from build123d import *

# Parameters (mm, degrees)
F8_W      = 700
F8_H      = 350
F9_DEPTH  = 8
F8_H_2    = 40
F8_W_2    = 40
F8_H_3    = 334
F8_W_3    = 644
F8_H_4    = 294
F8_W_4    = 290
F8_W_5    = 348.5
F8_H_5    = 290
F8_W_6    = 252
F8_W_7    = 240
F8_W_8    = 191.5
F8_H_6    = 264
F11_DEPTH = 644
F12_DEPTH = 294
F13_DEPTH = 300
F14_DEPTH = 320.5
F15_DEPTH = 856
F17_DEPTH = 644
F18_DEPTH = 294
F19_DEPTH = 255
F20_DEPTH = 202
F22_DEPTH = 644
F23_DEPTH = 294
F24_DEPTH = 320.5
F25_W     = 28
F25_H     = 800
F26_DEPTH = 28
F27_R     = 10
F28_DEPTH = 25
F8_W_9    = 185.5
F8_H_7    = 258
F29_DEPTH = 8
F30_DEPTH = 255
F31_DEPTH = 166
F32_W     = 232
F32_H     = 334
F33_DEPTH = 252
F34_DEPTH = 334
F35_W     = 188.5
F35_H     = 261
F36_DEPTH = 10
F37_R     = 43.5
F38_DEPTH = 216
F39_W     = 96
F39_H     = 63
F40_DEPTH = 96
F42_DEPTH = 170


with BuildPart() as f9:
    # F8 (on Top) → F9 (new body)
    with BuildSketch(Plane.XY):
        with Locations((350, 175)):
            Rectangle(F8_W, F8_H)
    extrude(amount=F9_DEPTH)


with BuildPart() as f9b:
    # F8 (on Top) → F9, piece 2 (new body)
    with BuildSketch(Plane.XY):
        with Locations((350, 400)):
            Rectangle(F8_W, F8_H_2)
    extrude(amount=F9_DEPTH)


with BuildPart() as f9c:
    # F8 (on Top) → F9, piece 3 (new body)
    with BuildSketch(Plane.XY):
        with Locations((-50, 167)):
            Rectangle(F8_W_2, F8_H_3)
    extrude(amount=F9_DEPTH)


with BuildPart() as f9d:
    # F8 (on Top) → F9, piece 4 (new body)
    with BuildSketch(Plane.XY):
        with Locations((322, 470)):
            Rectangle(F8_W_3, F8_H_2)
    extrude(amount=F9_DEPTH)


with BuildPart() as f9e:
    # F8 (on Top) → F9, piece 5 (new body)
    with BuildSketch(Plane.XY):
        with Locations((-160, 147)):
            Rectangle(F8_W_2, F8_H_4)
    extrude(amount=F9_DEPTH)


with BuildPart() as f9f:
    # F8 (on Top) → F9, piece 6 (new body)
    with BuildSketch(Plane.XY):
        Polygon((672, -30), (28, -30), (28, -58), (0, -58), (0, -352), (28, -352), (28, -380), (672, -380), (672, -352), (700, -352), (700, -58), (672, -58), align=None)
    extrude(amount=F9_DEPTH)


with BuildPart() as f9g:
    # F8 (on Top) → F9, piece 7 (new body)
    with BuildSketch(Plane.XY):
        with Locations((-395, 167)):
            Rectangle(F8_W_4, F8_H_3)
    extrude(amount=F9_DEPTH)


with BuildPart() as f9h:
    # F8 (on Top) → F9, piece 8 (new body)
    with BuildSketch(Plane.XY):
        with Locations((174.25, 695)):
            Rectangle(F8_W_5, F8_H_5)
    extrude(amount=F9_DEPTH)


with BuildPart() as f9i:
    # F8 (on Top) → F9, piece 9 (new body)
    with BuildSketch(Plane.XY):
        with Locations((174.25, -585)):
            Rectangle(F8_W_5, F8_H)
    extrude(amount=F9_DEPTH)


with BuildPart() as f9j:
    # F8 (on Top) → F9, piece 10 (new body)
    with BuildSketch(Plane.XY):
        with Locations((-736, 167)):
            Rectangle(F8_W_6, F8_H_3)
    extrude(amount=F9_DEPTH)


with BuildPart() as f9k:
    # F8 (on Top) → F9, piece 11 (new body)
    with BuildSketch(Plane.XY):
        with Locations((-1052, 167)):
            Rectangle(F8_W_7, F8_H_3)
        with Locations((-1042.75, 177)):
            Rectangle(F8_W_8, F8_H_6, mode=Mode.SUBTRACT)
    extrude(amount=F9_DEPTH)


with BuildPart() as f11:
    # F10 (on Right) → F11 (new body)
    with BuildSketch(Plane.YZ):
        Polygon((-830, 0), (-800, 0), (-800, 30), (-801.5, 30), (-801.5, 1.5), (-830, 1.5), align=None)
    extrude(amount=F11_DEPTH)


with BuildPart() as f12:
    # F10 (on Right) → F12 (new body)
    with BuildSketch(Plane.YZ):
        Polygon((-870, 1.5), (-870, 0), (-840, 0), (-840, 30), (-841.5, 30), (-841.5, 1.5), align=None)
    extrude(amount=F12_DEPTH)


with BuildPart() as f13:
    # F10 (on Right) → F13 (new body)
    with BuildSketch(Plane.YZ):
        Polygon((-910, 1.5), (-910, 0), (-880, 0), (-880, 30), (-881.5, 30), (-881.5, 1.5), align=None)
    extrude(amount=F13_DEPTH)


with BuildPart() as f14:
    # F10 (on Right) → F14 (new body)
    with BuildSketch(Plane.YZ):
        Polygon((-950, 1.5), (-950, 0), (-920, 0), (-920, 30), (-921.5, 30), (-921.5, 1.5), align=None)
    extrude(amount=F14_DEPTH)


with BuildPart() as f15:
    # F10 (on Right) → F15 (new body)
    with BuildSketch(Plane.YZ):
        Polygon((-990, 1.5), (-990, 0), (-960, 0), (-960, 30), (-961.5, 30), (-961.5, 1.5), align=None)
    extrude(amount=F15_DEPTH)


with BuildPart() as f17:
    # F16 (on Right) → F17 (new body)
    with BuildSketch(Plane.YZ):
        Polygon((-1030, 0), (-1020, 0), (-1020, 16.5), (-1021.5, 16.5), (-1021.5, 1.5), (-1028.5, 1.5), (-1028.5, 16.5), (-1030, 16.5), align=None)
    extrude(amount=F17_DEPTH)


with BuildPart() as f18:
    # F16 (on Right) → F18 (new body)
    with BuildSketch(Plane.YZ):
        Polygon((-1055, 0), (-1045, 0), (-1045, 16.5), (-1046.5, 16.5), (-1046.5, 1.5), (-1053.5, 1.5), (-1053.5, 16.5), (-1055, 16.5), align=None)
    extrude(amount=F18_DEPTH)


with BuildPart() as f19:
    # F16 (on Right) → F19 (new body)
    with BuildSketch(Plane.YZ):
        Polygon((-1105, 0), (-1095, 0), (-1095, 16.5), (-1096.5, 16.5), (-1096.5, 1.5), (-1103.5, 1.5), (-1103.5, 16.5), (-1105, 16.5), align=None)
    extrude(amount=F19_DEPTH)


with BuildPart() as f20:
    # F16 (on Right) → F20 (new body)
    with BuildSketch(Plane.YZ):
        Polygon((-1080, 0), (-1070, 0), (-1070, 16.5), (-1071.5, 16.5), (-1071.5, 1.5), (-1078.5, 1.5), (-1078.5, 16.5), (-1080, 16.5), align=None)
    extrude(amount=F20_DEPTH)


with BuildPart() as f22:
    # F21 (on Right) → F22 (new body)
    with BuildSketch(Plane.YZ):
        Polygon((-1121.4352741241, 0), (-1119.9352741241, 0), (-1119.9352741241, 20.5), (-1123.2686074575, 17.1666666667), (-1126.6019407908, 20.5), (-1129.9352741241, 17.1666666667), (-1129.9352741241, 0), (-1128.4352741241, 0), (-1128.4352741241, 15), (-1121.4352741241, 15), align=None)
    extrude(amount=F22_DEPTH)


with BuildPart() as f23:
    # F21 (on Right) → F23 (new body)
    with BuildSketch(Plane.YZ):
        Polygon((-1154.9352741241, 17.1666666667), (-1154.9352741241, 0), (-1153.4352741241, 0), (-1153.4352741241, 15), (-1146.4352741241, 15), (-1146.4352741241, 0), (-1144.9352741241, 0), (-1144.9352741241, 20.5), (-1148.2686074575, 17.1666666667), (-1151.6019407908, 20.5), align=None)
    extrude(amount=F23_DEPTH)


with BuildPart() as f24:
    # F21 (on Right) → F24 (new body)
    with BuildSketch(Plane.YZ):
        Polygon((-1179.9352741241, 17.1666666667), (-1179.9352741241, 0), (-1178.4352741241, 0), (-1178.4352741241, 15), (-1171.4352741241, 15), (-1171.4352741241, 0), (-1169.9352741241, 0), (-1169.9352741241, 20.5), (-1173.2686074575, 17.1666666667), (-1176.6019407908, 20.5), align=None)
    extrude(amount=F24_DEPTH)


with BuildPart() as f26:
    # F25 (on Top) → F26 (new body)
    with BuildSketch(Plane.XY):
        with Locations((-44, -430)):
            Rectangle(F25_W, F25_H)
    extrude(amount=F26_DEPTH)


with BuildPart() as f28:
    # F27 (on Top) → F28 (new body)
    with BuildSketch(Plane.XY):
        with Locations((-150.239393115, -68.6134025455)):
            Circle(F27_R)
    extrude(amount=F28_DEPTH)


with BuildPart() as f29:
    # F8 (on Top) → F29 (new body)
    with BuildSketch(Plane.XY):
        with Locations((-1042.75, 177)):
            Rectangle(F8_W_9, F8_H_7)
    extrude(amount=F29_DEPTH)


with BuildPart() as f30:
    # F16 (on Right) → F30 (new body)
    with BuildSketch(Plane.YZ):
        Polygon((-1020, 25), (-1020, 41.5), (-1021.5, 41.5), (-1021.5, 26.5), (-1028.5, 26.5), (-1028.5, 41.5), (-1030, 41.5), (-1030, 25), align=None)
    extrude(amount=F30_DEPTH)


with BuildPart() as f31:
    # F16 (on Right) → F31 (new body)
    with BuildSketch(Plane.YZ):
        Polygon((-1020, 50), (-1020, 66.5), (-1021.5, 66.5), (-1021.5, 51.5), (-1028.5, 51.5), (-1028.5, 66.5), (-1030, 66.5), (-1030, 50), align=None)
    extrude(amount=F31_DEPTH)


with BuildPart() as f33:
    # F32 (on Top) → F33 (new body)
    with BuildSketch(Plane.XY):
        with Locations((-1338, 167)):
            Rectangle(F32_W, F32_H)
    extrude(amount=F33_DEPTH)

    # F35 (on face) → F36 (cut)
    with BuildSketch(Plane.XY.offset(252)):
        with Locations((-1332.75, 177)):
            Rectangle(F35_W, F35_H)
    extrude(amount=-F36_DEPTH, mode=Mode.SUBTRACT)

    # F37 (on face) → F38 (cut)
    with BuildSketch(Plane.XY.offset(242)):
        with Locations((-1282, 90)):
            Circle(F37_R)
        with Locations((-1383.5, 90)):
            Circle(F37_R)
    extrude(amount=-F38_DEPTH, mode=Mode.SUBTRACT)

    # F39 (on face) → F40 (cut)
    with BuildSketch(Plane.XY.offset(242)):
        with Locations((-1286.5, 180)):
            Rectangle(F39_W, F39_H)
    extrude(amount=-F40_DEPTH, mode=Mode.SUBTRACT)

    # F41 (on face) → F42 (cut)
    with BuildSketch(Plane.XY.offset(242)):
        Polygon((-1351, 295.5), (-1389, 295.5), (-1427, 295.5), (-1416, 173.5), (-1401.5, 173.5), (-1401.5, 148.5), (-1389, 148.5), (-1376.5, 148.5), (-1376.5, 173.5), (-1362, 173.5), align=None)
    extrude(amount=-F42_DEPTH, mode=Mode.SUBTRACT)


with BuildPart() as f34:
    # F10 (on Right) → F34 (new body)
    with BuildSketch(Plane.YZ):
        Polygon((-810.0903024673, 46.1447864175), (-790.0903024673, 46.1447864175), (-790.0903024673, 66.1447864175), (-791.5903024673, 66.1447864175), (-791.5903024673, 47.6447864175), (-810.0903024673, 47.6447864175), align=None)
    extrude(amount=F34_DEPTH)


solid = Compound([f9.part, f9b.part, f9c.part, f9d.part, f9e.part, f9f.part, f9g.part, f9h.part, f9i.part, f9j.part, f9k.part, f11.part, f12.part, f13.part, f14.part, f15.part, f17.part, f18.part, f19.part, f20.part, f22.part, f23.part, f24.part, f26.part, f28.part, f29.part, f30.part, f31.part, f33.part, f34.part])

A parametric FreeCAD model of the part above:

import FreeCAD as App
import Part
import Sketcher
from FreeCAD import Vector


def add_polygon(sketch, points):
    """Adds a closed chain of lines whose ends are joined by coincident constraints."""
    first, n = sketch.GeometryCount, len(points)
    for a, b in zip(points, points[1:] + points[:1]):
        sketch.addGeometry(Part.LineSegment(App.Vector(*a, 0), App.Vector(*b, 0)), False)
    for i in range(n):
        sketch.addConstraint(Sketcher.Constraint("Coincident", first + i, 2, first + (i + 1) % n, 1))

doc = App.newDocument("Part")
params = doc.addObject("Spreadsheet::Sheet", "Params")
for row, (alias, value) in enumerate([
    ("sketch1_width", "700 mm"),
    ("sketch1_height", "350 mm"),
    ("pad1_length", "8 mm"),
    ("sketch2_width", "700 mm"),
    ("sketch2_height", "40 mm"),
    ("pad2_length", "8 mm"),
    ("sketch3_width", "40 mm"),
    ("sketch3_height", "334 mm"),
    ("pad3_length", "8 mm"),
    ("sketch4_width", "644 mm"),
    ("sketch4_height", "40 mm"),
    ("pad4_length", "8 mm"),
    ("sketch5_width", "40 mm"),
    ("sketch5_height", "294 mm"),
    ("pad5_length", "8 mm"),
    ("sketch6_width", "644 mm"),
    ("sketch6_width2", "28 mm"),
    ("sketch6_height", "294 mm"),
    ("pad6_length", "8 mm"),
    ("sketch7_width", "290 mm"),
    ("sketch7_height", "334 mm"),
    ("pad7_length", "8 mm"),
    ("sketch8_height", "290 mm"),
    ("sketch8_width", "348.5 mm"),
    ("pad8_length", "8 mm"),
    ("sketch9_height", "350 mm"),
    ("sketch9_width", "348.5 mm"),
    ("pad9_length", "8 mm"),
    ("sketch10_width", "252 mm"),
    ("sketch10_height", "334 mm"),
    ("pad10_length", "8 mm"),
    ("sketch11_width", "240 mm"),
    ("sketch11_height", "334 mm"),
    ("sketch11_height2", "264 mm"),
    ("sketch11_width2", "191.5 mm"),
    ("pad11_length", "8 mm"),
    ("sketch12_width", "30 mm"),
    ("sketch12_width2", "1.5 mm"),
    ("pad12_length", "644 mm"),
    ("sketch13_width", "30 mm"),
    ("sketch13_width2", "1.5 mm"),
    ("pad13_length", "294 mm"),
    ("sketch14_width", "30 mm"),
    ("sketch14_width2", "1.5 mm"),
    ("pad14_length", "300 mm"),
    ("sketch15_width", "30 mm"),
    ("sketch15_width2", "1.5 mm"),
    ("pad15_length", "320.5 mm"),
    ("sketch16_width", "30 mm"),
    ("sketch16_width2", "1.5 mm"),
    ("pad16_length", "856 mm"),
    ("sketch17_width", "10 mm"),
    ("sketch17_width2", "7 mm"),
    ("sketch17_height", "15 mm"),
    ("sketch17_height2", "16.5 mm"),
    ("pad17_length", "644 mm"),
    ("sketch18_width", "10 mm"),
    ("sketch18_width2", "7 mm"),
    ("sketch18_height", "15 mm"),
    ("sketch18_height2", "16.5 mm"),
    ("pad18_length", "294 mm"),
    ("sketch19_width", "10 mm"),
    ("sketch19_width2", "7 mm"),
    ("sketch19_height", "15 mm"),
    ("sketch19_height2", "16.5 mm"),
    ("pad19_length", "255 mm"),
    ("sketch20_width", "10 mm"),
    ("sketch20_width2", "7 mm"),
    ("sketch20_height", "15 mm"),
    ("sketch20_height2", "16.5 mm"),
    ("pad20_length", "202 mm"),
    ("sketch21_width", "7 mm"),
    ("sketch21_height", "15 mm"),
    ("sketch21_width2", "1.5 mm"),
    ("sketch21_height2", "20.5 mm"),
    ("pad21_length", "644 mm"),
    ("sketch22_width", "7 mm"),
    ("sketch22_height", "15 mm"),
    ("sketch22_width2", "1.5 mm"),
    ("sketch22_height2", "20.5 mm"),
    ("pad22_length", "294 mm"),
    ("sketch23_width", "7 mm"),
    ("sketch23_height", "15 mm"),
    ("sketch23_width2", "1.5 mm"),
    ("sketch23_height2", "20.5 mm"),
    ("pad23_length", "320.5 mm"),
    ("sketch24_width", "28 mm"),
    ("sketch24_height", "800 mm"),
    ("pad24_length", "28 mm"),
    ("sketch25_diameter", "20 mm"),
    ("pad25_length", "25 mm"),
    ("sketch26_height", "258 mm"),
    ("sketch26_width", "185.5 mm"),
    ("pad26_length", "8 mm"),
    ("sketch27_width", "7 mm"),
    ("sketch27_width2", "10 mm"),
    ("sketch27_height", "15 mm"),
    ("sketch27_height2", "16.5 mm"),
    ("pad27_length", "255 mm"),
    ("sketch28_width", "7 mm"),
    ("sketch28_width2", "10 mm"),
    ("sketch28_height", "15 mm"),
    ("sketch28_height2", "16.5 mm"),
    ("pad28_length", "166 mm"),
    ("sketch29_width", "232 mm"),
    ("sketch29_height", "334 mm"),
    ("pad29_length", "252 mm"),
    ("sketch30_height", "261 mm"),
    ("sketch30_width", "188.5 mm"),
    ("pocket1_length", "10 mm"),
    ("sketch31_diameter", "87 mm"),
    ("pocket2_length", "216 mm"),
    ("sketch32_width", "96 mm"),
    ("sketch32_height", "63 mm"),
    ("pocket3_length", "96 mm"),
    ("sketch33_width", "76 mm"),
    ("sketch33_width2", "25 mm"),
    ("sketch33_width3", "14.5 mm"),
    ("pocket4_length", "170 mm"),
    ("sketch34_width", "20 mm"),
    ("sketch34_width2", "1.5 mm"),
    ("pad30_length", "334 mm"),
], start=1):
    params.set(f"A{row}", alias)
    params.set(f"B{row}", "=" + value)
    params.setAlias(f"B{row}", alias)

body = doc.addObject("PartDesign::Body", "Body")

# Sketch on XY plane
sketch1 = body.newObject("Sketcher::SketchObject", "Sketch")
sketch1.AttachmentSupport = (doc.getObject("XY_Plane"), [""])
sketch1.MapMode = "FlatFace"
add_polygon(sketch1, [(0, 350), (0, 0), (700, 0), (700, 350)])  # lines 0-3
sketch1.addConstraint([
    Sketcher.Constraint("Vertical", 0),
    Sketcher.Constraint("Horizontal", 1),
    Sketcher.Constraint("Vertical", 2),
    Sketcher.Constraint("Horizontal", 3),
    Sketcher.Constraint("Coincident", 0, 2, -1, 1),
    Sketcher.Constraint("DistanceX", 1, 1, 1, 2, 700.0),
    Sketcher.Constraint("DistanceY", 0, 2, 0, 1, 350.0),
])
sketch1.setExpression("Constraints[9]", "Params.sketch1_width")
sketch1.setExpression("Constraints[10]", "Params.sketch1_height")
pad1 = body.newObject("PartDesign::Pad", "Pad")
pad1.Profile = sketch1
pad1.setExpression("Length", "Params.pad1_length")
body2 = doc.addObject("PartDesign::Body", "Body001")

# Sketch on XY plane
sketch2 = body2.newObject("Sketcher::SketchObject", "Sketch001")
sketch2.AttachmentSupport = (doc.getObject("XY_Plane001"), [""])
sketch2.MapMode = "FlatFace"
add_polygon(sketch2, [(0, 420), (0, 380), (700, 380), (700, 420)])  # lines 0-3
sketch2.addConstraint([
    Sketcher.Constraint("Vertical", 0),
    Sketcher.Constraint("Horizontal", 1),
    Sketcher.Constraint("Vertical", 2),
    Sketcher.Constraint("Horizontal", 3),
    Sketcher.Constraint("PointOnObject", 0, 2, -2),
    Sketcher.Constraint("DistanceX", 1, 1, 1, 2, 700.0),
    Sketcher.Constraint("DistanceY", 0, 2, 0, 1, 40.0),
    Sketcher.Constraint("DistanceY", -1, 1, 0, 2, 380.0),
])
sketch2.setExpression("Constraints[9]", "Params.sketch2_width")
sketch2.setExpression("Constraints[10]", "Params.sketch2_height")
pad2 = body2.newObject("PartDesign::Pad", "Pad001")
pad2.Profile = sketch2
pad2.setExpression("Length", "Params.pad2_length")
body3 = doc.addObject("PartDesign::Body", "Body002")

# Sketch on XY plane
sketch3 = body3.newObject("Sketcher::SketchObject", "Sketch002")
sketch3.AttachmentSupport = (doc.getObject("XY_Plane002"), [""])
sketch3.MapMode = "FlatFace"
add_polygon(sketch3, [(-70, 334), (-70, 0), (-30, 0), (-30, 334)])  # lines 0-3
sketch3.addConstraint([
    Sketcher.Constraint("Vertical", 0),
    Sketcher.Constraint("Horizontal", 1),
    Sketcher.Constraint("Vertical", 2),
    Sketcher.Constraint("Horizontal", 3),
    Sketcher.Constraint("PointOnObject", 0, 2, -1),
    Sketcher.Constraint("DistanceX", 1, 1, 1, 2, 40.0),
    Sketcher.Constraint("DistanceY", 0, 2, 0, 1, 334.0),
    Sketcher.Constraint("DistanceX", 0, 2, -1, 1, 70.0),
])
sketch3.setExpression("Constraints[9]", "Params.sketch3_width")
sketch3.setExpression("Constraints[10]", "Params.sketch3_height")
pad3 = body3.newObject("PartDesign::Pad", "Pad002")
pad3.Profile = sketch3
pad3.setExpression("Length", "Params.pad3_length")
body4 = doc.addObject("PartDesign::Body", "Body003")

# Sketch on XY plane
sketch4 = body4.newObject("Sketcher::SketchObject", "Sketch003")
sketch4.AttachmentSupport = (doc.getObject("XY_Plane003"), [""])
sketch4.MapMode = "FlatFace"
add_polygon(sketch4, [(0, 490), (0, 450), (644, 450), (644, 490)])  # lines 0-3
sketch4.addConstraint([
    Sketcher.Constraint("Vertical", 0),
    Sketcher.Constraint("Horizontal", 1),
    Sketcher.Constraint("Vertical", 2),
    Sketcher.Constraint("Horizontal", 3),
    Sketcher.Constraint("PointOnObject", 0, 2, -2),
    Sketcher.Constraint("DistanceX", 1, 1, 1, 2, 644.0),
    Sketcher.Constraint("DistanceY", 0, 2, 0, 1, 40.0),
    Sketcher.Constraint("DistanceY", -1, 1, 0, 2, 450.0),
])
sketch4.setExpression("Constraints[9]", "Params.sketch4_width")
sketch4.setExpression("Constraints[10]", "Params.sketch4_height")
pad4 = body4.newObject("PartDesign::Pad", "Pad003")
pad4.Profile = sketch4
pad4.setExpression("Length", "Params.pad4_length")
body5 = doc.addObject("PartDesign::Body", "Body004")

# Sketch on XY plane
sketch5 = body5.newObject("Sketcher::SketchObject", "Sketch004")
sketch5.AttachmentSupport = (doc.getObject("XY_Plane004"), [""])
sketch5.MapMode = "FlatFace"
add_polygon(sketch5, [(-180, 294), (-180, 0), (-140, 0), (-140, 294)])  # lines 0-3
sketch5.addConstraint([
    Sketcher.Constraint("Vertical", 0),
    Sketcher.Constraint("Horizontal", 1),
    Sketcher.Constraint("Vertical", 2),
    Sketcher.Constraint("Horizontal", 3),
    Sketcher.Constraint("PointOnObject", 0, 2, -1),
    Sketcher.Constraint("DistanceX", 1, 1, 1, 2, 40.0),
    Sketcher.Constraint("DistanceY", 0, 2, 0, 1, 294.0),
    Sketcher.Constraint("DistanceX", 0, 2, -1, 1, 180.0),
])
sketch5.setExpression("Constraints[9]", "Params.sketch5_width")
sketch5.setExpression("Constraints[10]", "Params.sketch5_height")
pad5 = body5.newObject("PartDesign::Pad", "Pad004")
pad5.Profile = sketch5
pad5.setExpression("Length", "Params.pad5_length")
body6 = doc.addObject("PartDesign::Body", "Body005")

# Sketch on XY plane
sketch6 = body6.newObject("Sketcher::SketchObject", "Sketch005")
sketch6.AttachmentSupport = (doc.getObject("XY_Plane005"), [""])
sketch6.MapMode = "FlatFace"
add_polygon(sketch6, [(672, -30), (28, -30), (28, -58), (0, -58), (0, -352), (28, -352), (28, -380), (672, -380), (672, -352), (700, -352), (700, -58), (672, -58)])  # lines 0-11
sketch6.addConstraint([
    Sketcher.Constraint("Horizontal", 0),
    Sketcher.Constraint("Vertical", 1),
    Sketcher.Constraint("Horizontal", 2),
    Sketcher.Constraint("Vertical", 3),
    Sketcher.Constraint("Horizontal", 4),
    Sketcher.Constraint("Vertical", 5),
    Sketcher.Constraint("Horizontal", 6),
    Sketcher.Constraint("Vertical", 7),
    Sketcher.Constraint("Horizontal", 8),
    Sketcher.Constraint("Vertical", 9),
    Sketcher.Constraint("Horizontal", 10),
    Sketcher.Constraint("Vertical", 11),
    Sketcher.Constraint("PointOnObject", 2, 2, -2),
    Sketcher.Constraint("Horizontal", 4, 2, 7, 2),
    Sketcher.Constraint("Horizontal", 2, 2, 9, 2),
    Sketcher.Constraint("Vertical", 1, 2, 4, 2),
    Sketcher.Constraint("Vertical", 7, 2, 10, 2),
    Sketcher.Constraint("Equal", 4, 8),
    Sketcher.Constraint("Equal", 10, 1),
    Sketcher.Constraint("Equal", 1, 5),
    Sketcher.Constraint("DistanceX", 0, 2, 0, 1, 644.0),
    Sketcher.Constraint("DistanceX", 2, 2, 2, 1, 28.0),
    Sketcher.Constraint("DistanceY", 3, 2, 3, 1, 294.0),
    Sketcher.Constraint("DistanceY", 0, 2, -1, 1, 30.0),
])
sketch6.setExpression("Constraints[32]", "Params.sketch6_width")
sketch6.setExpression("Constraints[33]", "Params.sketch6_width2")
sketch6.setExpression("Constraints[34]", "Params.sketch6_height")
pad6 = body6.newObject("PartDesign::Pad", "Pad005")
pad6.Profile = sketch6
pad6.setExpression("Length", "Params.pad6_length")
body7 = doc.addObject("PartDesign::Body", "Body006")

# Sketch on XY plane
sketch7 = body7.newObject("Sketcher::SketchObject", "Sketch006")
sketch7.AttachmentSupport = (doc.getObject("XY_Plane006"), [""])
sketch7.MapMode = "FlatFace"
add_polygon(sketch7, [(-540, 334), (-540, 0), (-250, 0), (-250, 334)])  # lines 0-3
sketch7.addConstraint([
    Sketcher.Constraint("Vertical", 0),
    Sketcher.Constraint("Horizontal", 1),
    Sketcher.Constraint("Vertical", 2),
    Sketcher.Constraint("Horizontal", 3),
    Sketcher.Constraint("PointOnObject", 0, 2, -1),
    Sketcher.Constraint("DistanceX", 1, 1, 1, 2, 290.0),
    Sketcher.Constraint("DistanceY", 0, 2, 0, 1, 334.0),
    Sketcher.Constraint("DistanceX", 0, 2, -1, 1, 540.0),
])
sketch7.setExpression("Constraints[9]", "Params.sketch7_width")
sketch7.setExpression("Constraints[10]", "Params.sketch7_height")
pad7 = body7.newObject("PartDesign::Pad", "Pad006")
pad7.Profile = sketch7
pad7.setExpression("Length", "Params.pad7_length")
body8 = doc.addObject("PartDesign::Body", "Body007")

# Sketch on XY plane
sketch8 = body8.newObject("Sketcher::SketchObject", "Sketch007")
sketch8.AttachmentSupport = (doc.getObject("XY_Plane007"), [""])
sketch8.MapMode = "FlatFace"
add_polygon(sketch8, [(0, 840), (0, 550), (348, 550), (348, 840)])  # lines 0-3
sketch8.addConstraint([
    Sketcher.Constraint("Vertical", 0),
    Sketcher.Constraint("Horizontal", 1),
    Sketcher.Constraint("Vertical", 2),
    Sketcher.Constraint("Horizontal", 3),
    Sketcher.Constraint("PointOnObject", 0, 2, -2),
    Sketcher.Constraint("DistanceY", 0, 2, 0, 1, 290.0),
    Sketcher.Constraint("DistanceX", 1, 1, 1, 2, 348.5),
    Sketcher.Constraint("DistanceY", -1, 1, 0, 2, 550.0),
])
sketch8.setExpression("Constraints[9]", "Params.sketch8_height")
sketch8.setExpression("Constraints[10]", "Params.sketch8_width")
pad8 = body8.newObject("PartDesign::Pad", "Pad007")
pad8.Profile = sketch8
pad8.setExpression("Length", "Params.pad8_length")
body9 = doc.addObject("PartDesign::Body", "Body008")

# Sketch on XY plane
sketch9 = body9.newObject("Sketcher::SketchObject", "Sketch008")
sketch9.AttachmentSupport = (doc.getObject("XY_Plane008"), [""])
sketch9.MapMode = "FlatFace"
add_polygon(sketch9, [(0, -410), (0, -760), (348, -760), (348, -410)])  # lines 0-3
sketch9.addConstraint([
    Sketcher.Constraint("Vertical", 0),
    Sketcher.Constraint("Horizontal", 1),
    Sketcher.Constraint("Vertical", 2),
    Sketcher.Constraint("Horizontal", 3),
    Sketcher.Constraint("PointOnObject", 0, 2, -2),
    Sketcher.Constraint("DistanceY", 0, 2, 0, 1, 350.0),
    Sketcher.Constraint("DistanceX", 1, 1, 1, 2, 348.5),
    Sketcher.Constraint("DistanceY", 0, 2, -1, 1, 760.0),
])
sketch9.setExpression("Constraints[9]", "Params.sketch9_height")
sketch9.setExpression("Constraints[10]", "Params.sketch9_width")
pad9 = body9.newObject("PartDesign::Pad", "Pad008")
pad9.Profile = sketch9
pad9.setExpression("Length", "Params.pad9_length")
body10 = doc.addObject("PartDesign::Body", "Body009")

# Sketch on XY plane
sketch10 = body10.newObject("Sketcher::SketchObject", "Sketch009")
sketch10.AttachmentSupport = (doc.getObject("XY_Plane009"), [""])
sketch10.MapMode = "FlatFace"
add_polygon(sketch10, [(-862, 334), (-862, 0), (-610, 0), (-610, 334)])  # lines 0-3
sketch10.addConstraint([
    Sketcher.Constraint("Vertical", 0),
    Sketcher.Constraint("Horizontal", 1),
    Sketcher.Constraint("Vertical", 2),
    Sketcher.Constraint("Horizontal", 3),
    Sketcher.Constraint("PointOnObject", 0, 2, -1),
    Sketcher.Constraint("DistanceX", 1, 1, 1, 2, 252.0),
    Sketcher.Constraint("DistanceY", 0, 2, 0, 1, 334.0),
    Sketcher.Constraint("DistanceX", 0, 2, -1, 1, 862.0),
])
sketch10.setExpression("Constraints[9]", "Params.sketch10_width")
sketch10.setExpression("Constraints[10]", "Params.sketch10_height")
pad10 = body10.newObject("PartDesign::Pad", "Pad009")
pad10.Profile = sketch10
pad10.setExpression("Length", "Params.pad10_length")
body11 = doc.addObject("PartDesign::Body", "Body010")

# Sketch on XY plane
sketch11 = body11.newObject("Sketcher::SketchObject", "Sketch010")
sketch11.AttachmentSupport = (doc.getObject("XY_Plane010"), [""])
sketch11.MapMode = "FlatFace"
add_polygon(sketch11, [(-1172, 334), (-1172, 0), (-932, 0), (-932, 334)])  # lines 0-3
add_polygon(sketch11, [(-947, 45), (-1138, 45), (-1138, 309), (-947, 309)])  # lines 4-7
sketch11.addConstraint([
    Sketcher.Constraint("Vertical", 0),
    Sketcher.Constraint("Horizontal", 1),
    Sketcher.Constraint("Vertical", 2),
    Sketcher.Constraint("Horizontal", 3),
    Sketcher.Constraint("Horizontal", 4),
    Sketcher.Constraint("Vertical", 5),
    Sketcher.Constraint("Horizontal", 6),
    Sketcher.Constraint("Vertical", 7),
    Sketcher.Constraint("PointOnObject", 0, 2, -1),
    Sketcher.Constraint("DistanceX", 1, 1, 1, 2, 240.0),
    Sketcher.Constraint("DistanceY", 0, 2, 0, 1, 334.0),
    Sketcher.Constraint("DistanceY", 5, 1, 5, 2, 264.0),
    Sketcher.Constraint("DistanceX", 4, 2, 4, 1, 191.5),
    Sketcher.Constraint("DistanceX", 0, 2, -1, 1, 1172.0),
    Sketcher.Constraint("DistanceY", -1, 1, 4, 2, 45.0),
    Sketcher.Constraint("DistanceX", 6, 2, -1, 1, 947.0),
])
sketch11.setExpression("Constraints[17]", "Params.sketch11_width")
sketch11.setExpression("Constraints[18]", "Params.sketch11_height")
sketch11.setExpression("Constraints[19]", "Params.sketch11_height2")
sketch11.setExpression("Constraints[20]", "Params.sketch11_width2")
pad11 = body11.newObject("PartDesign::Pad", "Pad010")
pad11.Profile = sketch11
pad11.setExpression("Length", "Params.pad11_length")
body12 = doc.addObject("PartDesign::Body", "Body011")

# Sketch on YZ plane
sketch12 = body12.newObject("Sketcher::SketchObject", "Sketch011")
sketch12.AttachmentSupport = (doc.getObject("YZ_Plane011"), [""])
sketch12.MapMode = "FlatFace"
add_polygon(sketch12, [(-830, 0), (-800, 0), (-800, 30), (-801.5, 30), (-801.5, 1.5), (-830, 1.5)])  # lines 0-5
sketch12.addConstraint([
    Sketcher.Constraint("Horizontal", 0),
    Sketcher.Constraint("Vertical", 1),
    Sketcher.Constraint("Horizontal", 2),
    Sketcher.Constraint("Vertical", 3),
    Sketcher.Constraint("Horizontal", 4),
    Sketcher.Constraint("Vertical", 5),
    Sketcher.Constraint("PointOnObject", 0, 2, -1),
    Sketcher.Constraint("Equal", 0, 1),
    Sketcher.Constraint("Equal", 4, 3),
    Sketcher.Constraint("DistanceX", 0, 1, 0, 2, 30.0),
    Sketcher.Constraint("DistanceX", 2, 2, 2, 1, 1.5),
    Sketcher.Constraint("DistanceX", 0, 2, -1, 1, 800.0),
])
sketch12.setExpression("Constraints[15]", "Params.sketch12_width")
sketch12.setExpression("Constraints[16]", "Params.sketch12_width2")
pad12 = body12.newObject("PartDesign::Pad", "Pad011")
pad12.Profile = sketch12
pad12.setExpression("Length", "Params.pad12_length")
body13 = doc.addObject("PartDesign::Body", "Body012")

# Sketch on YZ plane
sketch13 = body13.newObject("Sketcher::SketchObject", "Sketch012")
sketch13.AttachmentSupport = (doc.getObject("YZ_Plane012"), [""])
sketch13.MapMode = "FlatFace"
add_polygon(sketch13, [(-870, 1.5), (-870, 0), (-840, 0), (-840, 30), (-841.5, 30), (-841.5, 1.5)])  # lines 0-5
sketch13.addConstraint([
    Sketcher.Constraint("Vertical", 0),
    Sketcher.Constraint("Horizontal", 1),
    Sketcher.Constraint("Vertical", 2),
    Sketcher.Constraint("Horizontal", 3),
    Sketcher.Constraint("Vertical", 4),
    Sketcher.Constraint("Horizontal", 5),
    Sketcher.Constraint("PointOnObject", 0, 2, -1),
    Sketcher.Constraint("Equal", 3, 0),
    Sketcher.Constraint("Equal", 1, 2),
    Sketcher.Constraint("DistanceX", 1, 1, 1, 2, 30.0),
    Sketcher.Constraint("DistanceX", 3, 2, 3, 1, 1.5),
    Sketcher.Constraint("DistanceX", 0, 2, -1, 1, 870.0),
])
sketch13.setExpression("Constraints[15]", "Params.sketch13_width")
sketch13.setExpression("Constraints[16]", "Params.sketch13_width2")
pad13 = body13.newObject("PartDesign::Pad", "Pad012")
pad13.Profile = sketch13
pad13.setExpression("Length", "Params.pad13_length")
body14 = doc.addObject("PartDesign::Body", "Body013")

# Sketch on YZ plane
sketch14 = body14.newObject("Sketcher::SketchObject", "Sketch013")
sketch14.AttachmentSupport = (doc.getObject("YZ_Plane013"), [""])
sketch14.MapMode = "FlatFace"
add_polygon(sketch14, [(-910, 1.5), (-910, 0), (-880, 0), (-880, 30), (-881.5, 30), (-881.5, 1.5)])  # lines 0-5
sketch14.addConstraint([
    Sketcher.Constraint("Vertical", 0),
    Sketcher.Constraint("Horizontal", 1),
    Sketcher.Constraint("Vertical", 2),
    Sketcher.Constraint("Horizontal", 3),
    Sketcher.Constraint("Vertical", 4),
    Sketcher.Constraint("Horizontal", 5),
    Sketcher.Constraint("PointOnObject", 0, 2, -1),
    Sketcher.Constraint("Equal", 3, 0),
    Sketcher.Constraint("Equal", 1, 2),
    Sketcher.Constraint("DistanceX", 1, 1, 1, 2, 30.0),
    Sketcher.Constraint("DistanceX", 3, 2, 3, 1, 1.5),
    Sketcher.Constraint("DistanceX", 0, 2, -1, 1, 910.0),
])
sketch14.setExpression("Constraints[15]", "Params.sketch14_width")
sketch14.setExpression("Constraints[16]", "Params.sketch14_width2")
pad14 = body14.newObject("PartDesign::Pad", "Pad013")
pad14.Profile = sketch14
pad14.setExpression("Length", "Params.pad14_length")
body15 = doc.addObject("PartDesign::Body", "Body014")

# Sketch on YZ plane
sketch15 = body15.newObject("Sketcher::SketchObject", "Sketch014")
sketch15.AttachmentSupport = (doc.getObject("YZ_Plane014"), [""])
sketch15.MapMode = "FlatFace"
add_polygon(sketch15, [(-950, 1.5), (-950, 0), (-920, 0), (-920, 30), (-921.5, 30), (-921.5, 1.5)])  # lines 0-5
sketch15.addConstraint([
    Sketcher.Constraint("Vertical", 0),
    Sketcher.Constraint("Horizontal", 1),
    Sketcher.Constraint("Vertical", 2),
    Sketcher.Constraint("Horizontal", 3),
    Sketcher.Constraint("Vertical", 4),
    Sketcher.Constraint("Horizontal", 5),
    Sketcher.Constraint("PointOnObject", 0, 2, -1),
    Sketcher.Constraint("Equal", 3, 0),
    Sketcher.Constraint("Equal", 1, 2),
    Sketcher.Constraint("DistanceX", 1, 1, 1, 2, 30.0),
    Sketcher.Constraint("DistanceX", 3, 2, 3, 1, 1.5),
    Sketcher.Constraint("DistanceX", 0, 2, -1, 1, 950.0),
])
sketch15.setExpression("Constraints[15]", "Params.sketch15_width")
sketch15.setExpression("Constraints[16]", "Params.sketch15_width2")
pad15 = body15.newObject("PartDesign::Pad", "Pad014")
pad15.Profile = sketch15
pad15.setExpression("Length", "Params.pad15_length")
body16 = doc.addObject("PartDesign::Body", "Body015")

# Sketch on YZ plane
sketch16 = body16.newObject("Sketcher::SketchObject", "Sketch015")
sketch16.AttachmentSupport = (doc.getObject("YZ_Plane015"), [""])
sketch16.MapMode = "FlatFace"
add_polygon(sketch16, [(-990, 1.5), (-990, 0), (-960, 0), (-960, 30), (-961.5, 30), (-961.5, 1.5)])  # lines 0-5
sketch16.addConstraint([
    Sketcher.Constraint("Vertical", 0),
    Sketcher.Constraint("Horizontal", 1),
    Sketcher.Constraint("Vertical", 2),
    Sketcher.Constraint("Horizontal", 3),
    Sketcher.Constraint("Vertical", 4),
    Sketcher.Constraint("Horizontal", 5),
    Sketcher.Constraint("PointOnObject", 0, 2, -1),
    Sketcher.Constraint("Equal", 3, 0),
    Sketcher.Constraint("Equal", 1, 2),
    Sketcher.Constraint("DistanceX", 1, 1, 1, 2, 30.0),
    Sketcher.Constraint("DistanceX", 3, 2, 3, 1, 1.5),
    Sketcher.Constraint("DistanceX", 0, 2, -1, 1, 990.0),
])
sketch16.setExpression("Constraints[15]", "Params.sketch16_width")
sketch16.setExpression("Constraints[16]", "Params.sketch16_width2")
pad16 = body16.newObject("PartDesign::Pad", "Pad015")
pad16.Profile = sketch16
pad16.setExpression("Length", "Params.pad16_length")
body17 = doc.addObject("PartDesign::Body", "Body016")

# Sketch on YZ plane
sketch17 = body17.newObject("Sketcher::SketchObject", "Sketch016")
sketch17.AttachmentSupport = (doc.getObject("YZ_Plane016"), [""])
sketch17.MapMode = "FlatFace"
add_polygon(sketch17, [(-1030, 0), (-1020, 0), (-1020, 16.5), (-1021.5, 16.5), (-1021.5, 1.5), (-1028.5, 1.5), (-1028.5, 16.5), (-1030, 16.5)])  # lines 0-7
sketch17.addConstraint([
    Sketcher.Constraint("Horizontal", 0),
    Sketcher.Constraint("Vertical", 1),
    Sketcher.Constraint("Horizontal", 2),
    Sketcher.Constraint("Vertical", 3),
    Sketcher.Constraint("Horizontal", 4),
    Sketcher.Constraint("Vertical", 5),
    Sketcher.Constraint("Horizontal", 6),
    Sketcher.Constraint("Vertical", 7),
    Sketcher.Constraint("PointOnObject", 0, 2, -1),
    Sketcher.Constraint("Horizontal", 2, 2, 5, 2),
    Sketcher.Constraint("Equal", 2, 6),
    Sketcher.Constraint("DistanceX", 0, 1, 0, 2, 10.0),
    Sketcher.Constraint("DistanceX", 4, 2, 4, 1, 7.0),
    Sketcher.Constraint("DistanceY", 3, 2, 3, 1, 15.0),
    Sketcher.Constraint("DistanceY", 1, 1, 1, 2, 16.5),
    Sketcher.Constraint("DistanceX", 0, 2, -1, 1, 1020.0),
])
sketch17.setExpression("Constraints[19]", "Params.sketch17_width")
sketch17.setExpression("Constraints[20]", "Params.sketch17_width2")
sketch17.setExpression("Constraints[21]", "Params.sketch17_height")
sketch17.setExpression("Constraints[22]", "Params.sketch17_height2")
pad17 = body17.newObject("PartDesign::Pad", "Pad016")
pad17.Profile = sketch17
pad17.setExpression("Length", "Params.pad17_length")
body18 = doc.addObject("PartDesign::Body", "Body017")

# Sketch on YZ plane
sketch18 = body18.newObject("Sketcher::SketchObject", "Sketch017")
sketch18.AttachmentSupport = (doc.getObject("YZ_Plane017"), [""])
sketch18.MapMode = "FlatFace"
add_polygon(sketch18, [(-1055, 0), (-1045, 0), (-1045, 16.5), (-1046.5, 16.5), (-1046.5, 1.5), (-1053.5, 1.5), (-1053.5, 16.5), (-1055, 16.5)])  # lines 0-7
sketch18.addConstraint([
    Sketcher.Constraint("Horizontal", 0),
    Sketcher.Constraint("Vertical", 1),
    Sketcher.Constraint("Horizontal", 2),
    Sketcher.Constraint("Vertical", 3),
    Sketcher.Constraint("Horizontal", 4),
    Sketcher.Constraint("Vertical", 5),
    Sketcher.Constraint("Horizontal", 6),
    Sketcher.Constraint("Vertical", 7),
    Sketcher.Constraint("PointOnObject", 0, 2, -1),
    Sketcher.Constraint("Horizontal", 2, 2, 5, 2),
    Sketcher.Constraint("Equal", 2, 6),
    Sketcher.Constraint("DistanceX", 0, 1, 0, 2, 10.0),
    Sketcher.Constraint("DistanceX", 4, 2, 4, 1, 7.0),
    Sketcher.Constraint("DistanceY", 3, 2, 3, 1, 15.0),
    Sketcher.Constraint("DistanceY", 1, 1, 1, 2, 16.5),
    Sketcher.Constraint("DistanceX", 0, 2, -1, 1, 1045.0),
])
sketch18.setExpression("Constraints[19]", "Params.sketch18_width")
sketch18.setExpression("Constraints[20]", "Params.sketch18_width2")
sketch18.setExpression("Constraints[21]", "Params.sketch18_height")
sketch18.setExpression("Constraints[22]", "Params.sketch18_height2")
pad18 = body18.newObject("PartDesign::Pad", "Pad017")
pad18.Profile = sketch18
pad18.setExpression("Length", "Params.pad18_length")
body19 = doc.addObject("PartDesign::Body", "Body018")

# Sketch on YZ plane
sketch19 = body19.newObject("Sketcher::SketchObject", "Sketch018")
sketch19.AttachmentSupport = (doc.getObject("YZ_Plane018"), [""])
sketch19.MapMode = "FlatFace"
add_polygon(sketch19, [(-1105, 0), (-1095, 0), (-1095, 16.5), (-1096.5, 16.5), (-1096.5, 1.5), (-1103.5, 1.5), (-1103.5, 16.5), (-1105, 16.5)])  # lines 0-7
sketch19.addConstraint([
    Sketcher.Constraint("Horizontal", 0),
    Sketcher.Constraint("Vertical", 1),
    Sketcher.Constraint("Horizontal", 2),
    Sketcher.Constraint("Vertical", 3),
    Sketcher.Constraint("Horizontal", 4),
    Sketcher.Constraint("Vertical", 5),
    Sketcher.Constraint("Horizontal", 6),
    Sketcher.Constraint("Vertical", 7),
    Sketcher.Constraint("PointOnObject", 0, 2, -1),
    Sketcher.Constraint("Horizontal", 2, 2, 5, 2),
    Sketcher.Constraint("Equal", 2, 6),
    Sketcher.Constraint("DistanceX", 0, 1, 0, 2, 10.0),
    Sketcher.Constraint("DistanceX", 4, 2, 4, 1, 7.0),
    Sketcher.Constraint("DistanceY", 3, 2, 3, 1, 15.0),
    Sketcher.Constraint("DistanceY", 1, 1, 1, 2, 16.5),
    Sketcher.Constraint("DistanceX", 0, 2, -1, 1, 1095.0),
])
sketch19.setExpression("Constraints[19]", "Params.sketch19_width")
sketch19.setExpression("Constraints[20]", "Params.sketch19_width2")
sketch19.setExpression("Constraints[21]", "Params.sketch19_height")
sketch19.setExpression("Constraints[22]", "Params.sketch19_height2")
pad19 = body19.newObject("PartDesign::Pad", "Pad018")
pad19.Profile = sketch19
pad19.setExpression("Length", "Params.pad19_length")
body20 = doc.addObject("PartDesign::Body", "Body019")

# Sketch on YZ plane
sketch20 = body20.newObject("Sketcher::SketchObject", "Sketch019")
sketch20.AttachmentSupport = (doc.getObject("YZ_Plane019"), [""])
sketch20.MapMode = "FlatFace"
add_polygon(sketch20, [(-1080, 0), (-1070, 0), (-1070, 16.5), (-1071.5, 16.5), (-1071.5, 1.5), (-1078.5, 1.5), (-1078.5, 16.5), (-1080, 16.5)])  # lines 0-7
sketch20.addConstraint([
    Sketcher.Constraint("Horizontal", 0),
    Sketcher.Constraint("Vertical", 1),
    Sketcher.Constraint("Horizontal", 2),
    Sketcher.Constraint("Vertical", 3),
    Sketcher.Constraint("Horizontal", 4),
    Sketcher.Constraint("Vertical", 5),
    Sketcher.Constraint("Horizontal", 6),
    Sketcher.Constraint("Vertical", 7),
    Sketcher.Constraint("PointOnObject", 0, 2, -1),
    Sketcher.Constraint("Horizontal", 2, 2, 5, 2),
    Sketcher.Constraint("Equal", 2, 6),
    Sketcher.Constraint("DistanceX", 0, 1, 0, 2, 10.0),
    Sketcher.Constraint("DistanceX", 4, 2, 4, 1, 7.0),
    Sketcher.Constraint("DistanceY", 3, 2, 3, 1, 15.0),
    Sketcher.Constraint("DistanceY", 1, 1, 1, 2, 16.5),
    Sketcher.Constraint("DistanceX", 0, 2, -1, 1, 1070.0),
])
sketch20.setExpression("Constraints[19]", "Params.sketch20_width")
sketch20.setExpression("Constraints[20]", "Params.sketch20_width2")
sketch20.setExpression("Constraints[21]", "Params.sketch20_height")
sketch20.setExpression("Constraints[22]", "Params.sketch20_height2")
pad20 = body20.newObject("PartDesign::Pad", "Pad019")
pad20.Profile = sketch20
pad20.setExpression("Length", "Params.pad20_length")
body21 = doc.addObject("PartDesign::Body", "Body020")

# Sketch on YZ plane
sketch21 = body21.newObject("Sketcher::SketchObject", "Sketch020")
sketch21.AttachmentSupport = (doc.getObject("YZ_Plane020"), [""])
sketch21.MapMode = "FlatFace"
add_polygon(sketch21, [(-1121.4, 0), (-1119.9, 0), (-1119.9, 20.5), (-1123.3, 17.2), (-1126.6, 20.5), (-1129.9, 17.2), (-1129.9, 0), (-1128.4, 0), (-1128.4, 15), (-1121.4, 15)])  # lines 0-9
sketch21.addConstraint([
    Sketcher.Constraint("Horizontal", 0),
    Sketcher.Constraint("Vertical", 1),
    Sketcher.Constraint("Vertical", 5),
    Sketcher.Constraint("Horizontal", 6),
    Sketcher.Constraint("Vertical", 7),
    Sketcher.Constraint("Horizontal", 8),
    Sketcher.Constraint("Vertical", 9),
    Sketcher.Constraint("PointOnObject", 0, 2, -1),
    Sketcher.Constraint("PointOnObject", 5, 2, -1),
    Sketcher.Constraint("Perpendicular", 2, 3),
    Sketcher.Constraint("Perpendicular", 3, 4),
    Sketcher.Constraint("Horizontal", 1, 2, 3, 2),
    Sketcher.Constraint("Horizontal", 2, 2, 4, 2),
    Sketcher.Constraint("Equal", 0, 6),
    Sketcher.Constraint("Equal", 2, 3),
    Sketcher.Constraint("DistanceX", 8, 1, 8, 2, 7.0),
    Sketcher.Constraint("DistanceY", 7, 1, 7, 2, 15.0),
    Sketcher.Constraint("DistanceX", 0, 1, 0, 2, 1.5),
    Sketcher.Constraint("DistanceY", 1, 1, 1, 2, 20.5),
    Sketcher.Constraint("DistanceX", 3, 2, -1, 1, 1126.601941),
])
sketch21.setExpression("Constraints[25]", "Params.sketch21_width")
sketch21.setExpression("Constraints[26]", "Params.sketch21_height")
sketch21.setExpression("Constraints[27]", "Params.sketch21_width2")
sketch21.setExpression("Constraints[28]", "Params.sketch21_height2")
pad21 = body21.newObject("PartDesign::Pad", "Pad020")
pad21.Profile = sketch21
pad21.setExpression("Length", "Params.pad21_length")
body22 = doc.addObject("PartDesign::Body", "Body021")

# Sketch on YZ plane
sketch22 = body22.newObject("Sketcher::SketchObject", "Sketch021")
sketch22.AttachmentSupport = (doc.getObject("YZ_Plane021"), [""])
sketch22.MapMode = "FlatFace"
add_polygon(sketch22, [(-1154.9, 17.2), (-1154.9, 0), (-1153.4, 0), (-1153.4, 15), (-1146.4, 15), (-1146.4, 0), (-1144.9, 0), (-1144.9, 20.5), (-1148.3, 17.2), (-1151.6, 20.5)])  # lines 0-9
sketch22.addConstraint([
    Sketcher.Constraint("Vertical", 0),
    Sketcher.Constraint("Horizontal", 1),
    Sketcher.Constraint("Vertical", 2),
    Sketcher.Constraint("Horizontal", 3),
    Sketcher.Constraint("Vertical", 4),
    Sketcher.Constraint("Horizontal", 5),
    Sketcher.Constraint("Vertical", 6),
    Sketcher.Constraint("PointOnObject", 0, 2, -1),
    Sketcher.Constraint("PointOnObject", 4, 2, -1),
    Sketcher.Constraint("Perpendicular", 7, 8),
    Sketcher.Constraint("Perpendicular", 8, 9),
    Sketcher.Constraint("Horizontal", 6, 2, 8, 2),
    Sketcher.Constraint("Horizontal", 7, 2, 9, 2),
    Sketcher.Constraint("Equal", 1, 5),
    Sketcher.Constraint("Equal", 7, 8),
    Sketcher.Constraint("DistanceX", 3, 1, 3, 2, 7.0),
    Sketcher.Constraint("DistanceY", 2, 1, 2, 2, 15.0),
    Sketcher.Constraint("DistanceX", 1, 1, 1, 2, 1.5),
    Sketcher.Constraint("DistanceY", 6, 1, 6, 2, 20.5),
    Sketcher.Constraint("DistanceX", 8, 2, -1, 1, 1151.601941),
])
sketch22.setExpression("Constraints[25]", "Params.sketch22_width")
sketch22.setExpression("Constraints[26]", "Params.sketch22_height")
sketch22.setExpression("Constraints[27]", "Params.sketch22_width2")
sketch22.setExpression("Constraints[28]", "Params.sketch22_height2")
pad22 = body22.newObject("PartDesign::Pad", "Pad021")
pad22.Profile = sketch22
pad22.setExpression("Length", "Params.pad22_length")
body23 = doc.addObject("PartDesign::Body", "Body022")

# Sketch on YZ plane
sketch23 = body23.newObject("Sketcher::SketchObject", "Sketch022")
sketch23.AttachmentSupport = (doc.getObject("YZ_Plane022"), [""])
sketch23.MapMode = "FlatFace"
add_polygon(sketch23, [(-1179.9, 17.2), (-1179.9, 0), (-1178.4, 0), (-1178.4, 15), (-1171.4, 15), (-1171.4, 0), (-1169.9, 0), (-1169.9, 20.5), (-1173.3, 17.2), (-1176.6, 20.5)])  # lines 0-9
sketch23.addConstraint([
    Sketcher.Constraint("Vertical", 0),
    Sketcher.Constraint("Horizontal", 1),
    Sketcher.Constraint("Vertical", 2),
    Sketcher.Constraint("Horizontal", 3),
    Sketcher.Constraint("Vertical", 4),
    Sketcher.Constraint("Horizontal", 5),
    Sketcher.Constraint("Vertical", 6),
    Sketcher.Constraint("PointOnObject", 0, 2, -1),
    Sketcher.Constraint("PointOnObject", 4, 2, -1),
    Sketcher.Constraint("Perpendicular", 7, 8),
    Sketcher.Constraint("Perpendicular", 8, 9),
    Sketcher.Constraint("Horizontal", 6, 2, 8, 2),
    Sketcher.Constraint("Horizontal", 7, 2, 9, 2),
    Sketcher.Constraint("Equal", 1, 5),
    Sketcher.Constraint("Equal", 7, 8),
    Sketcher.Constraint("DistanceX", 3, 1, 3, 2, 7.0),
    Sketcher.Constraint("DistanceY", 2, 1, 2, 2, 15.0),
    Sketcher.Constraint("DistanceX", 1, 1, 1, 2, 1.5),
    Sketcher.Constraint("DistanceY", 6, 1, 6, 2, 20.5),
    Sketcher.Constraint("DistanceX", 8, 2, -1, 1, 1176.601941),
])
sketch23.setExpression("Constraints[25]", "Params.sketch23_width")
sketch23.setExpression("Constraints[26]", "Params.sketch23_height")
sketch23.setExpression("Constraints[27]", "Params.sketch23_width2")
sketch23.setExpression("Constraints[28]", "Params.sketch23_height2")
pad23 = body23.newObject("PartDesign::Pad", "Pad022")
pad23.Profile = sketch23
pad23.setExpression("Length", "Params.pad23_length")
body24 = doc.addObject("PartDesign::Body", "Body023")

# Sketch on XY plane
sketch24 = body24.newObject("Sketcher::SketchObject", "Sketch023")
sketch24.AttachmentSupport = (doc.getObject("XY_Plane023"), [""])
sketch24.MapMode = "FlatFace"
add_polygon(sketch24, [(-58, -30), (-58, -830), (-30, -830), (-30, -30)])  # lines 0-3
sketch24.addConstraint([
    Sketcher.Constraint("Vertical", 0),
    Sketcher.Constraint("Horizontal", 1),
    Sketcher.Constraint("Vertical", 2),
    Sketcher.Constraint("Horizontal", 3),
    Sketcher.Constraint("DistanceX", 1, 1, 1, 2, 28.0),
    Sketcher.Constraint("DistanceY", 0, 2, 0, 1, 800.0),
    Sketcher.Constraint("DistanceX", 0, 2, -1, 1, 58.0),
    Sketcher.Constraint("DistanceY", 0, 2, -1, 1, 830.0),
])
sketch24.setExpression("Constraints[8]", "Params.sketch24_width")
sketch24.setExpression("Constraints[9]", "Params.sketch24_height")
pad24 = body24.newObject("PartDesign::Pad", "Pad023")
pad24.Profile = sketch24
pad24.setExpression("Length", "Params.pad24_length")
body25 = doc.addObject("PartDesign::Body", "Body024")

# Sketch on XY plane
sketch25 = body25.newObject("Sketcher::SketchObject", "Sketch024")
sketch25.AttachmentSupport = (doc.getObject("XY_Plane024"), [""])
sketch25.MapMode = "FlatFace"
sketch25.addGeometry(Part.Circle(Vector(-150, -69, 0), Vector(0, 0, 1), 10), False)
sketch25.addConstraint([
    Sketcher.Constraint("Diameter", 0, 20.0),
    Sketcher.Constraint("DistanceX", 0, 3, -1, 1, 150.239393),
    Sketcher.Constraint("DistanceY", 0, 3, -1, 1, 68.613403),
])
sketch25.setExpression("Constraints[0]", "Params.sketch25_diameter")
pad25 = body25.newObject("PartDesign::Pad", "Pad024")
pad25.Profile = sketch25
pad25.setExpression("Length", "Params.pad25_length")
body26 = doc.addObject("PartDesign::Body", "Body025")

# Sketch on XY plane
sketch26 = body26.newObject("Sketcher::SketchObject", "Sketch025")
sketch26.AttachmentSupport = (doc.getObject("XY_Plane025"), [""])
sketch26.MapMode = "FlatFace"
add_polygon(sketch26, [(-1136, 306), (-1136, 48), (-950, 48), (-950, 306)])  # lines 0-3
sketch26.addConstraint([
    Sketcher.Constraint("Vertical", 0),
    Sketcher.Constraint("Horizontal", 1),
    Sketcher.Constraint("Vertical", 2),
    Sketcher.Constraint("Horizontal", 3),
    Sketcher.Constraint("DistanceY", 0, 2, 0, 1, 258.0),
    Sketcher.Constraint("DistanceX", 1, 1, 1, 2, 185.5),
    Sketcher.Constraint("DistanceY", -1, 1, 0, 2, 48.0),
    Sketcher.Constraint("DistanceX", 1, 2, -1, 1, 950.0),
])
sketch26.setExpression("Constraints[8]", "Params.sketch26_height")
sketch26.setExpression("Constraints[9]", "Params.sketch26_width")
pad26 = body26.newObject("PartDesign::Pad", "Pad025")
pad26.Profile = sketch26
pad26.setExpression("Length", "Params.pad26_length")
body27 = doc.addObject("PartDesign::Body", "Body026")

# Sketch on YZ plane
sketch27 = body27.newObject("Sketcher::SketchObject", "Sketch026")
sketch27.AttachmentSupport = (doc.getObject("YZ_Plane026"), [""])
sketch27.MapMode = "FlatFace"
add_polygon(sketch27, [(-1020, 25), (-1020, 41.5), (-1021.5, 41.5), (-1021.5, 26.5), (-1028.5, 26.5), (-1028.5, 41.5), (-1030, 41.5), (-1030, 25)])  # lines 0-7
sketch27.addConstraint([
    Sketcher.Constraint("Vertical", 0),
    Sketcher.Constraint("Horizontal", 1),
    Sketcher.Constraint("Vertical", 2),
    Sketcher.Constraint("Horizontal", 3),
    Sketcher.Constraint("Vertical", 4),
    Sketcher.Constraint("Horizontal", 5),
    Sketcher.Constraint("Vertical", 6),
    Sketcher.Constraint("Horizontal", 7),
    Sketcher.Constraint("Horizontal", 1, 2, 4, 2),
    Sketcher.Constraint("Equal", 1, 5),
    Sketcher.Constraint("DistanceX", 3, 2, 3, 1, 7.0),
    Sketcher.Constraint("DistanceX", 7, 1, 7, 2, 10.0),
    Sketcher.Constraint("DistanceY", 2, 2, 2, 1, 15.0),
    Sketcher.Constraint("DistanceY", 0, 1, 0, 2, 16.5),
    Sketcher.Constraint("DistanceX", 0, 2, -1, 1, 1020.0),
    Sketcher.Constraint("DistanceY", -1, 1, 6, 2, 25.0),
])
sketch27.setExpression("Constraints[18]", "Params.sketch27_width")
sketch27.setExpression("Constraints[19]", "Params.sketch27_width2")
sketch27.setExpression("Constraints[20]", "Params.sketch27_height")
sketch27.setExpression("Constraints[21]", "Params.sketch27_height2")
pad27 = body27.newObject("PartDesign::Pad", "Pad026")
pad27.Profile = sketch27
pad27.setExpression("Length", "Params.pad27_length")
body28 = doc.addObject("PartDesign::Body", "Body027")

# Sketch on YZ plane
sketch28 = body28.newObject("Sketcher::SketchObject", "Sketch027")
sketch28.AttachmentSupport = (doc.getObject("YZ_Plane027"), [""])
sketch28.MapMode = "FlatFace"
add_polygon(sketch28, [(-1020, 50), (-1020, 66.5), (-1021.5, 66.5), (-1021.5, 51.5), (-1028.5, 51.5), (-1028.5, 66.5), (-1030, 66.5), (-1030, 50)])  # lines 0-7
sketch28.addConstraint([
    Sketcher.Constraint("Vertical", 0),
    Sketcher.Constraint("Horizontal", 1),
    Sketcher.Constraint("Vertical", 2),
    Sketcher.Constraint("Horizontal", 3),
    Sketcher.Constraint("Vertical", 4),
    Sketcher.Constraint("Horizontal", 5),
    Sketcher.Constraint("Vertical", 6),
    Sketcher.Constraint("Horizontal", 7),
    Sketcher.Constraint("Horizontal", 1, 2, 4, 2),
    Sketcher.Constraint("Equal", 1, 5),
    Sketcher.Constraint("DistanceX", 3, 2, 3, 1, 7.0),
    Sketcher.Constraint("DistanceX", 7, 1, 7, 2, 10.0),
    Sketcher.Constraint("DistanceY", 2, 2, 2, 1, 15.0),
    Sketcher.Constraint("DistanceY", 0, 1, 0, 2, 16.5),
    Sketcher.Constraint("DistanceX", 0, 2, -1, 1, 1020.0),
    Sketcher.Constraint("DistanceY", -1, 1, 6, 2, 50.0),
])
sketch28.setExpression("Constraints[18]", "Params.sketch28_width")
sketch28.setExpression("Constraints[19]", "Params.sketch28_width2")
sketch28.setExpression("Constraints[20]", "Params.sketch28_height")
sketch28.setExpression("Constraints[21]", "Params.sketch28_height2")
pad28 = body28.newObject("PartDesign::Pad", "Pad027")
pad28.Profile = sketch28
pad28.setExpression("Length", "Params.pad28_length")
body29 = doc.addObject("PartDesign::Body", "Body028")

# Sketch on XY plane
sketch29 = body29.newObject("Sketcher::SketchObject", "Sketch028")
sketch29.AttachmentSupport = (doc.getObject("XY_Plane028"), [""])
sketch29.MapMode = "FlatFace"
add_polygon(sketch29, [(-1454, 334), (-1454, 0), (-1222, 0), (-1222, 334)])  # lines 0-3
sketch29.addConstraint([
    Sketcher.Constraint("Vertical", 0),
    Sketcher.Constraint("Horizontal", 1),
    Sketcher.Constraint("Vertical", 2),
    Sketcher.Constraint("Horizontal", 3),
    Sketcher.Constraint("PointOnObject", 0, 2, -1),
    Sketcher.Constraint("DistanceX", 1, 1, 1, 2, 232.0),
    Sketcher.Constraint("DistanceY", 0, 2, 0, 1, 334.0),
    Sketcher.Constraint("DistanceX", 0, 2, -1, 1, 1454.0),
])
sketch29.setExpression("Constraints[9]", "Params.sketch29_width")
sketch29.setExpression("Constraints[10]", "Params.sketch29_height")
pad29 = body29.newObject("PartDesign::Pad", "Pad028")
pad29.Profile = sketch29
pad29.setExpression("Length", "Params.pad29_length")

# Sketch on XY plane
sketch30 = body29.newObject("Sketcher::SketchObject", "Sketch029")
sketch30.AttachmentSupport = (doc.getObject("XY_Plane028"), [""])
sketch30.MapMode = "FlatFace"
sketch30.AttachmentOffset = App.Placement(Vector(0, 0, 252), App.Rotation())
add_polygon(sketch30, [(-1427, 308), (-1427, 46), (-1238, 46), (-1238, 308)])  # lines 0-3
sketch30.addConstraint([
    Sketcher.Constraint("Vertical", 0),
    Sketcher.Constraint("Horizontal", 1),
    Sketcher.Constraint("Vertical", 2),
    Sketcher.Constraint("Horizontal", 3),
    Sketcher.Constraint("DistanceY", 0, 2, 0, 1, 261.0),
    Sketcher.Constraint("DistanceX", 1, 1, 1, 2, 188.5),
    Sketcher.Constraint("DistanceX", 0, 2, -1, 1, 1427.0),
    Sketcher.Constraint("DistanceY", -1, 1, 0, 2, 46.5),
])
sketch30.setExpression("Constraints[8]", "Params.sketch30_height")
sketch30.setExpression("Constraints[9]", "Params.sketch30_width")
pocket1 = body29.newObject("PartDesign::Pocket", "Pocket")
pocket1.Profile = sketch30
pocket1.setExpression("Length", "Params.pocket1_length")

# Sketch on XY plane
sketch31 = body29.newObject("Sketcher::SketchObject", "Sketch030")
sketch31.AttachmentSupport = (doc.getObject("XY_Plane028"), [""])
sketch31.MapMode = "FlatFace"
sketch31.AttachmentOffset = App.Placement(Vector(0, 0, 242), App.Rotation())
sketch31.addGeometry([
    Part.Circle(Vector(-1282, 90, 0), Vector(0, 0, 1), 44),
    Part.Circle(Vector(-1384, 90, 0), Vector(0, 0, 1), 44),
], False)
sketch31.addConstraint([
    Sketcher.Constraint("Equal", 0, 1),
    Sketcher.Constraint("Horizontal", 0, 3, 1, 3),
    Sketcher.Constraint("Diameter", 0, 87.0),
    Sketcher.Constraint("DistanceX", 0, 3, -1, 1, 1282.0),
    Sketcher.Constraint("DistanceY", -1, 1, 0, 3, 90.0),
    Sketcher.Constraint("DistanceX", 1, 3, -1, 1, 1383.5),
])
sketch31.setExpression("Constraints[2]", "Params.sketch31_diameter")
pocket2 = body29.newObject("PartDesign::Pocket", "Pocket001")
pocket2.Profile = sketch31
pocket2.setExpression("Length", "Params.pocket2_length")

# Sketch on XY plane
sketch32 = body29.newObject("Sketcher::SketchObject", "Sketch031")
sketch32.AttachmentSupport = (doc.getObject("XY_Plane028"), [""])
sketch32.MapMode = "FlatFace"
sketch32.AttachmentOffset = App.Placement(Vector(0, 0, 242), App.Rotation())
add_polygon(sketch32, [(-1334, 212), (-1334, 148), (-1238, 148), (-1238, 212)])  # lines 0-3
sketch32.addConstraint([
    Sketcher.Constraint("Vertical", 0),
    Sketcher.Constraint("Horizontal", 1),
    Sketcher.Constraint("Vertical", 2),
    Sketcher.Constraint("Horizontal", 3),
    Sketcher.Constraint("DistanceX", 1, 1, 1, 2, 96.0),
    Sketcher.Constraint("DistanceY", 0, 2, 0, 1, 63.0),
    Sketcher.Constraint("DistanceX", 0, 2, -1, 1, 1334.5),
    Sketcher.Constraint("DistanceY", -1, 1, 0, 2, 148.5),
])
sketch32.setExpression("Constraints[8]", "Params.sketch32_width")
sketch32.setExpression("Constraints[9]", "Params.sketch32_height")
pocket3 = body29.newObject("PartDesign::Pocket", "Pocket002")
pocket3.Profile = sketch32
pocket3.setExpression("Length", "Params.pocket3_length")

# Sketch on XY plane
sketch33 = body29.newObject("Sketcher::SketchObject", "Sketch032")
sketch33.AttachmentSupport = (doc.getObject("XY_Plane028"), [""])
sketch33.MapMode = "FlatFace"
sketch33.AttachmentOffset = App.Placement(Vector(0, 0, 242), App.Rotation())
add_polygon(sketch33, [(-1351, 296), (-1427, 296), (-1416, 174), (-1402, 174), (-1402, 148), (-1376, 148), (-1376, 174), (-1362, 174)])  # lines 0-7
sketch33.addConstraint([
    Sketcher.Constraint("Horizontal", 0),
    Sketcher.Constraint("Horizontal", 2),
    Sketcher.Constraint("Vertical", 3),
    Sketcher.Constraint("Horizontal", 4),
    Sketcher.Constraint("Vertical", 5),
    Sketcher.Constraint("Horizontal", 6),
    Sketcher.Constraint("Horizontal", 2, 2, 5, 2),
    Sketcher.Constraint("Equal", 2, 6),
    Sketcher.Constraint("Equal", 4, 3),
    Sketcher.Constraint("Equal", 1, 7),
    Sketcher.Constraint("DistanceX", 0, 2, 0, 1, 76.0),
    Sketcher.Constraint("DistanceX", 4, 1, 4, 2, 25.0),
    Sketcher.Constraint("DistanceX", 2, 1, 2, 2, 14.5),
    Sketcher.Constraint("DistanceX", 0, 2, -1, 1, 1427.0),
    Sketcher.Constraint("DistanceY", 1, 2, 0, 2, 122.0),
    Sketcher.Constraint("DistanceY", -1, 1, 0, 2, 295.5),
])
sketch33.setExpression("Constraints[18]", "Params.sketch33_width")
sketch33.setExpression("Constraints[19]", "Params.sketch33_width2")
sketch33.setExpression("Constraints[20]", "Params.sketch33_width3")
pocket4 = body29.newObject("PartDesign::Pocket", "Pocket003")
pocket4.Profile = sketch33
pocket4.setExpression("Length", "Params.pocket4_length")
body30 = doc.addObject("PartDesign::Body", "Body029")

# Sketch on YZ plane
sketch34 = body30.newObject("Sketcher::SketchObject", "Sketch033")
sketch34.AttachmentSupport = (doc.getObject("YZ_Plane029"), [""])
sketch34.MapMode = "FlatFace"
add_polygon(sketch34, [(-810.1, 46.1), (-790.1, 46.1), (-790.1, 66.1), (-791.6, 66.1), (-791.6, 47.6), (-810.1, 47.6)])  # lines 0-5
sketch34.addConstraint([
    Sketcher.Constraint("Horizontal", 0),
    Sketcher.Constraint("Vertical", 1),
    Sketcher.Constraint("Horizontal", 2),
    Sketcher.Constraint("Vertical", 3),
    Sketcher.Constraint("Horizontal", 4),
    Sketcher.Constraint("Vertical", 5),
    Sketcher.Constraint("Equal", 0, 1),
    Sketcher.Constraint("Equal", 4, 3),
    Sketcher.Constraint("DistanceX", 0, 1, 0, 2, 20.0),
    Sketcher.Constraint("DistanceX", 2, 2, 2, 1, 1.5),
    Sketcher.Constraint("DistanceX", 0, 2, -1, 1, 790.090302),
    Sketcher.Constraint("DistanceY", -1, 1, 0, 2, 46.144786),
])
sketch34.setExpression("Constraints[14]", "Params.sketch34_width")
sketch34.setExpression("Constraints[15]", "Params.sketch34_width2")
pad30 = body30.newObject("PartDesign::Pad", "Pad029")
pad30.Profile = sketch34
pad30.setExpression("Length", "Params.pad30_length")

doc.recompute()
